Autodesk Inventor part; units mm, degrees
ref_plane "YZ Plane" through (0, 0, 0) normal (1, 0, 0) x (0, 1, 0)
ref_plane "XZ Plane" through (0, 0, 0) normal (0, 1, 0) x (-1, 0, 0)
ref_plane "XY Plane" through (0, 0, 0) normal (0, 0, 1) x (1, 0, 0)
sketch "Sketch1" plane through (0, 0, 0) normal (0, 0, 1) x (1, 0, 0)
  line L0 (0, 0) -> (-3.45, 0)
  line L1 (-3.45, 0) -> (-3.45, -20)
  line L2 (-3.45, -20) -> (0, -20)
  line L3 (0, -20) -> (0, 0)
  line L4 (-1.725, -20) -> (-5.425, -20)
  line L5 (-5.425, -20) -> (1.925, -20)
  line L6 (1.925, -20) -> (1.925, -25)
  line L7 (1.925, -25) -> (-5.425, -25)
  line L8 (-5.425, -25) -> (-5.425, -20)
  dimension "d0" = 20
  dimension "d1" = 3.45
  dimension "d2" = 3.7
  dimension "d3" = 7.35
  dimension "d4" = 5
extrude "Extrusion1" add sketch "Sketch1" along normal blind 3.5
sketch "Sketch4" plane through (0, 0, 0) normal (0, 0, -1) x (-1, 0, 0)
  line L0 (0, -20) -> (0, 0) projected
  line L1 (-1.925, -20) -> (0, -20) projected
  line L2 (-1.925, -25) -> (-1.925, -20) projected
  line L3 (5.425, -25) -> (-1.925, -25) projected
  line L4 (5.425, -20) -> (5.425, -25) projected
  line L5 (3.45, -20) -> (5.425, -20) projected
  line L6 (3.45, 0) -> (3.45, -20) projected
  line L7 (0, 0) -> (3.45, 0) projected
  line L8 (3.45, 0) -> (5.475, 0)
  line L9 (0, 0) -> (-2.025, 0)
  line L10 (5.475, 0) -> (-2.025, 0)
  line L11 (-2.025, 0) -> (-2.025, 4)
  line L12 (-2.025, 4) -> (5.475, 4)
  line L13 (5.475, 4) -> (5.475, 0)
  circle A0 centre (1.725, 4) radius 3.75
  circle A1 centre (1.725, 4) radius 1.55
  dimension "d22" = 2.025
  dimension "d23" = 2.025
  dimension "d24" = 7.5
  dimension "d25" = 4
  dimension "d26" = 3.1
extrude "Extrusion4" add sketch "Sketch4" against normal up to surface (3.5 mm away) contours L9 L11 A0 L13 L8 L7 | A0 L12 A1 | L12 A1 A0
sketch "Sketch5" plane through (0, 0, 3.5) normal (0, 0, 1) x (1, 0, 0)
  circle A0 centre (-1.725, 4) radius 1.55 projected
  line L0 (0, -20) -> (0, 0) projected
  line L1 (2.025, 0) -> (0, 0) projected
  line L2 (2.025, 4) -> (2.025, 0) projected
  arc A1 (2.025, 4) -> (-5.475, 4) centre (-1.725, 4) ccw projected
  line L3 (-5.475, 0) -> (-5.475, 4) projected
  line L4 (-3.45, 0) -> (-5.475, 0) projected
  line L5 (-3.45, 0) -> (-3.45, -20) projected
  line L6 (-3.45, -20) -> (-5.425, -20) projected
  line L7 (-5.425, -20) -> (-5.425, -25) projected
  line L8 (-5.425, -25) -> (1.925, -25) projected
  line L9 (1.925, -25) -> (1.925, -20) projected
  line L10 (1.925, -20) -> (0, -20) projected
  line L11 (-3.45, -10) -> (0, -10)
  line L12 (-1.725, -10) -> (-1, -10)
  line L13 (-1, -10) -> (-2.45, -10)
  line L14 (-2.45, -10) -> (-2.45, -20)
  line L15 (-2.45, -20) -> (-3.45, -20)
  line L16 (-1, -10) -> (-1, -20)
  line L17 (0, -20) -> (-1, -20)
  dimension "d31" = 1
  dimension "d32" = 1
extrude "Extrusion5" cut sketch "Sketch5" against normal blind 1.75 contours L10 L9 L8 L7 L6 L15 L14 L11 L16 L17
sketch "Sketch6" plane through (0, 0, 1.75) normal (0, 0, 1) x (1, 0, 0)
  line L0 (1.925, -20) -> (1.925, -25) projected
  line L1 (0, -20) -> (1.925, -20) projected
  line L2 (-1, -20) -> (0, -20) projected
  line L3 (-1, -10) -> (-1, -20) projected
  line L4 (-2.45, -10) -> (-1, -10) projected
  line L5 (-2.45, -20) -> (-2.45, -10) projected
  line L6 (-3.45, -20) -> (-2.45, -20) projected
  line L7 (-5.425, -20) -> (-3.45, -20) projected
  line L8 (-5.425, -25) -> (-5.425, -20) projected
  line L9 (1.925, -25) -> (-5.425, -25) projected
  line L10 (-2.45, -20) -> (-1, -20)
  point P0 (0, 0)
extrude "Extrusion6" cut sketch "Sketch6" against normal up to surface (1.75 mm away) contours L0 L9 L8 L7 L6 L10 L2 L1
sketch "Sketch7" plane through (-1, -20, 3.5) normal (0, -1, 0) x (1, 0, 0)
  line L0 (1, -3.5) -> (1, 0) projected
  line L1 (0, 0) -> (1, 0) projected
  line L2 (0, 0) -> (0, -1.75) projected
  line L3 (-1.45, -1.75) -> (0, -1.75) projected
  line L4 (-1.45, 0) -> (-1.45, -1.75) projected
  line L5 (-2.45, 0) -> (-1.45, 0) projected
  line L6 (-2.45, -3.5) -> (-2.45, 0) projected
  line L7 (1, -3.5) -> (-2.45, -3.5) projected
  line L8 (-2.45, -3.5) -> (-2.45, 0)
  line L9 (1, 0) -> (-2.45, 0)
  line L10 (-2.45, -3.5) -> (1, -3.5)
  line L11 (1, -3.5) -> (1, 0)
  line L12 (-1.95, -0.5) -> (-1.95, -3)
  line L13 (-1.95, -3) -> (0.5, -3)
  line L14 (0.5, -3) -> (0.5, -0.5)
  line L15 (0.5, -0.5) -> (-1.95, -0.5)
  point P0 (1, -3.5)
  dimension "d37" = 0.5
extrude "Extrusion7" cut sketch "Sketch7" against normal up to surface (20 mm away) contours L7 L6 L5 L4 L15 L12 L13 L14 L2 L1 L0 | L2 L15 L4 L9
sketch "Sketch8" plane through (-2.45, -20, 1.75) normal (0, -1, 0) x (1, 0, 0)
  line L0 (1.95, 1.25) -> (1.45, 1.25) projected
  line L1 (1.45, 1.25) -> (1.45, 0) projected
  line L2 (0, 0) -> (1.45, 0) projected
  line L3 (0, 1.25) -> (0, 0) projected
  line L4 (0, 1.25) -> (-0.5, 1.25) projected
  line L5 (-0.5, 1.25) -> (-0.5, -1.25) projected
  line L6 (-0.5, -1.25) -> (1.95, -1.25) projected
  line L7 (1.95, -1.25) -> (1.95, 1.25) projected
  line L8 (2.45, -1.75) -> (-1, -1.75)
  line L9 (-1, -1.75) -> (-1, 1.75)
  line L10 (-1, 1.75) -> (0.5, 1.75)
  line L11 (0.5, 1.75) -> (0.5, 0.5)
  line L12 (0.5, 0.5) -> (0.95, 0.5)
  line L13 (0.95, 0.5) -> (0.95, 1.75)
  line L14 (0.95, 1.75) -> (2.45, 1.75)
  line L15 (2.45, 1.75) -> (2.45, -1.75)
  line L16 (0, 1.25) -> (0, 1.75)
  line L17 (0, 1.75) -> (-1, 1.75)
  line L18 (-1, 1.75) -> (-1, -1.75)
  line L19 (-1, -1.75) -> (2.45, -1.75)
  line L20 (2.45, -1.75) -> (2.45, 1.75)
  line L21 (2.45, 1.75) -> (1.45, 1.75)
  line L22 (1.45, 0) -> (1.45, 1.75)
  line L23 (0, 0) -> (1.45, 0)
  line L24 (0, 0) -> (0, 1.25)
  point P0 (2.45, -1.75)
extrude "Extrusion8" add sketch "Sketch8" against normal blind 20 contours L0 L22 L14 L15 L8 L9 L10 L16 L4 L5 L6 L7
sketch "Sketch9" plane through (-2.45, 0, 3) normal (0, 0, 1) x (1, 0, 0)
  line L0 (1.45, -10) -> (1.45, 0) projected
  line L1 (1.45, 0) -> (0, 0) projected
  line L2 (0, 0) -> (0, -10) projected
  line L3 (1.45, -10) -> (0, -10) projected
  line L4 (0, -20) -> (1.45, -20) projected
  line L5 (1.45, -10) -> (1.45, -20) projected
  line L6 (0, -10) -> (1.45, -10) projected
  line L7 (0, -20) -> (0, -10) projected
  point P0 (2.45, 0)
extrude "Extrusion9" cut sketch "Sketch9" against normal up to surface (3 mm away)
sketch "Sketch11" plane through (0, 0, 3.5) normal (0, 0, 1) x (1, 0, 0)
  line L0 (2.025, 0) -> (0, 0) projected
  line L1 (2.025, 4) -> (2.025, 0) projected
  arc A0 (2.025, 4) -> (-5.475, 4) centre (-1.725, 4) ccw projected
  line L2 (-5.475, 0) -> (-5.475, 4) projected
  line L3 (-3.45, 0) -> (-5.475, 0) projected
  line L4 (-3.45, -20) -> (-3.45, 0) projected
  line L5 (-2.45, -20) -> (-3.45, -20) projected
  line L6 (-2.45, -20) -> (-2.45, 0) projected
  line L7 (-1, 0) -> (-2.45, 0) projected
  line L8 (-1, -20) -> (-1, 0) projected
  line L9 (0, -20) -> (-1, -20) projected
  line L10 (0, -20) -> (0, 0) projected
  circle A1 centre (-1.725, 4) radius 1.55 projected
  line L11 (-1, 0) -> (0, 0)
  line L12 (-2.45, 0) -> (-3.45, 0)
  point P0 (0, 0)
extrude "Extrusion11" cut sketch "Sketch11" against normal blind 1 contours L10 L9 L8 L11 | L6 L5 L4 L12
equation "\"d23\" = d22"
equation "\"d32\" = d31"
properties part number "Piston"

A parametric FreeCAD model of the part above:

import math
import FreeCAD as App
import Part
import Sketcher

doc = App.newDocument("Part")
params = doc.addObject("Spreadsheet::Sheet", "Params")
for row, (alias, value) in enumerate([
    ("sketch1_height", "20 mm"),
    ("sketch1_height2", "5 mm"),
    ("sketch1_width", "3.45 mm"),
    ("sketch1_width2", "7.35 mm"),
    ("pad1_length", "3.5 mm"),
    ("sketch2_diameter", "3.1 mm"),
    ("sketch2_height", "4 mm"),
    ("sketch2_radius", "3.75 mm"),
    ("pad2_length", "3.5 mm"),
    ("sketch3_height", "10 mm"),
    ("sketch3_height2", "5 mm"),
    ("sketch3_width", "1.45 mm"),
    ("sketch3_width2", "7.35 mm"),
    ("pocket1_length", "1.75 mm"),
    ("sketch4_height", "5 mm"),
    ("sketch4_width", "7.35 mm"),
    ("pocket2_length", "1.75 mm"),
    ("sketch5_height", "3.5 mm"),
    ("sketch5_width", "3.45 mm"),
    ("pocket3_length", "20 mm"),
    ("sketch6_width", "1 mm"),
    ("sketch6_width2", "0.5 mm"),
    ("sketch6_height", "2.5 mm"),
    ("sketch6_height2", "3.5 mm"),
    ("sketch6_width3", "2.45 mm"),
    ("pad3_length", "20 mm"),
    ("sketch7_height", "20 mm"),
    ("sketch7_width", "1.45 mm"),
    ("pocket4_length", "3 mm"),
    ("sketch8_width", "1 mm"),
    ("sketch8_height", "20 mm"),
    ("pocket5_length", "1 mm"),
], start=1):
    params.set(f"A{row}", alias)
    params.set(f"B{row}", "=" + value)
    params.setAlias(f"B{row}", alias)

body = doc.addObject("PartDesign::Body", "Body")

sketch1 = doc.addObject("Sketcher::SketchObject", "Sketch")
body.addObject(sketch1)
sketch1.AttachmentSupport = (doc.XY_Plane, [""])
sketch1.MapMode = "FlatFace"
sketch1.addGeometry([
    Part.LineSegment(App.Vector(0, -20, 0), App.Vector(0, 0, 0)),
    Part.LineSegment(App.Vector(0, 0, 0), App.Vector(-3.5, 0, 0)),
    Part.LineSegment(App.Vector(-3.5, 0, 0), App.Vector(-3.5, -20, 0)),
    Part.LineSegment(App.Vector(-3.5, -20, 0), App.Vector(-5.4, -20, 0)),
    Part.LineSegment(App.Vector(-5.4, -20, 0), App.Vector(-5.4, -25, 0)),
    Part.LineSegment(App.Vector(-5.4, -25, 0), App.Vector(1.9, -25, 0)),
    Part.LineSegment(App.Vector(1.9, -25, 0), App.Vector(1.9, -20, 0)),
    Part.LineSegment(App.Vector(1.9, -20, 0), App.Vector(0, -20, 0)),
], False)
sketch1.addConstraint([
    Sketcher.Constraint("Coincident", 0, 2, 1, 1),
    Sketcher.Constraint("Coincident", 1, 2, 2, 1),
    Sketcher.Constraint("Coincident", 2, 2, 3, 1),
    Sketcher.Constraint("Coincident", 3, 2, 4, 1),
    Sketcher.Constraint("Coincident", 4, 2, 5, 1),
    Sketcher.Constraint("Coincident", 5, 2, 6, 1),
    Sketcher.Constraint("Coincident", 6, 2, 7, 1),
    Sketcher.Constraint("Coincident", 7, 2, 0, 1),
    Sketcher.Constraint("Vertical", 0),
    Sketcher.Constraint("Horizontal", 1),
    Sketcher.Constraint("Vertical", 2),
    Sketcher.Constraint("Horizontal", 3),
    Sketcher.Constraint("Vertical", 4),
    Sketcher.Constraint("Horizontal", 5),
    Sketcher.Constraint("Vertical", 6),
    Sketcher.Constraint("Horizontal", 7),
    Sketcher.Constraint("Coincident", 0, 2, -1, 1),
    Sketcher.Constraint("Horizontal", 3, 2, 6, 2),
    Sketcher.Constraint("DistanceY", 0, 1, 0, 2, 20.0),
    Sketcher.Constraint("DistanceY", 4, 2, 4, 1, 5.0),
    Sketcher.Constraint("DistanceX", 1, 2, 1, 1, 3.45),
    Sketcher.Constraint("DistanceX", 5, 1, 5, 2, 7.35),
    Sketcher.Constraint("DistanceX", 3, 2, 3, 1, 1.975),
])
sketch1.setExpression("Constraints[18]", "Params.sketch1_height")
sketch1.setExpression("Constraints[19]", "Params.sketch1_height2")
sketch1.setExpression("Constraints[20]", "Params.sketch1_width")
sketch1.setExpression("Constraints[21]", "Params.sketch1_width2")
pad1 = doc.addObject("PartDesign::Pad", "Pad")
body.addObject(pad1)
pad1.Profile = sketch1
pad1.setExpression("Length", "Params.pad1_length")

sketch2 = doc.addObject("Sketcher::SketchObject", "Sketch001")
body.addObject(sketch2)
sketch2.AttachmentSupport = (doc.XY_Plane, [""])
sketch2.MapMode = "FlatFace"
sketch2.addGeometry([
    Part.LineSegment(App.Vector(2, 0, 0), App.Vector(-5.5, 0, 0)),
    Part.LineSegment(App.Vector(-5.5, 0, 0), App.Vector(-5.5, 4, 0)),
    Part.ArcOfCircle(Part.Circle(App.Vector(-1.7, 4, 0), App.Vector(0, 0, 1), 3.8), math.radians(0), math.radians(180)),
    Part.LineSegment(App.Vector(2, 4, 0), App.Vector(2, 0, 0)),
    Part.Circle(App.Vector(-1.7, 4, 0), App.Vector(0, 0, 1), 1.6),
], False)
sketch2.addConstraint([
    Sketcher.Constraint("Coincident", 0, 2, 1, 1),
    Sketcher.Constraint("Tangent", 1, 2, 2, 2),
    Sketcher.Constraint("Tangent", 2, 1, 3, 1),
    Sketcher.Constraint("Coincident", 3, 2, 0, 1),
    Sketcher.Constraint("Horizontal", 0),
    Sketcher.Constraint("Vertical", 1),
    Sketcher.Constraint("Vertical", 3),
    Sketcher.Constraint("Coincident", 4, 3, 2, 3),
    Sketcher.Constraint("PointOnObject", 0, 2, -1),
    Sketcher.Constraint("Diameter", 4, 3.1),
    Sketcher.Constraint("DistanceY", 1, 1, 1, 2, 4.0),
    Sketcher.Constraint("Radius", 2, 3.75),
    Sketcher.Constraint("DistanceX", -1, 1, 2, 1, 2.025),
])
sketch2.setExpression("Constraints[9]", "Params.sketch2_diameter")
sketch2.setExpression("Constraints[10]", "Params.sketch2_height")
sketch2.setExpression("Constraints[11]", "Params.sketch2_radius")
pad2 = doc.addObject("PartDesign::Pad", "Pad001")
body.addObject(pad2)
pad2.Profile = sketch2
pad2.setExpression("Length", "Params.pad2_length")

sketch3 = doc.addObject("Sketcher::SketchObject", "Sketch002")
body.addObject(sketch3)
sketch3.AttachmentSupport = (doc.XY_Plane, [""])
sketch3.MapMode = "FlatFace"
sketch3.AttachmentOffset = App.Placement(App.Vector(0, 0, 3.5), App.Rotation())
sketch3.addGeometry([
    Part.LineSegment(App.Vector(1.9, -20, 0), App.Vector(-1, -20, 0)),
    Part.LineSegment(App.Vector(-1, -20, 0), App.Vector(-1, -10, 0)),
    Part.LineSegment(App.Vector(-1, -10, 0), App.Vector(-2.5, -10, 0)),
    Part.LineSegment(App.Vector(-2.5, -10, 0), App.Vector(-2.5, -20, 0)),
    Part.LineSegment(App.Vector(-2.5, -20, 0), App.Vector(-5.4, -20, 0)),
    Part.LineSegment(App.Vector(-5.4, -20, 0), App.Vector(-5.4, -25, 0)),
    Part.LineSegment(App.Vector(-5.4, -25, 0), App.Vector(1.9, -25, 0)),
    Part.LineSegment(App.Vector(1.9, -25, 0), App.Vector(1.9, -20, 0)),
], False)
sketch3.addConstraint([
    Sketcher.Constraint("Coincident", 0, 2, 1, 1),
    Sketcher.Constraint("Coincident", 1, 2, 2, 1),
    Sketcher.Constraint("Coincident", 2, 2, 3, 1),
    Sketcher.Constraint("Coincident", 3, 2, 4, 1),
    Sketcher.Constraint("Coincident", 4, 2, 5, 1),
    Sketcher.Constraint("Coincident", 5, 2, 6, 1),
    Sketcher.Constraint("Coincident", 6, 2, 7, 1),
    Sketcher.Constraint("Coincident", 7, 2, 0, 1),
    Sketcher.Constraint("Horizontal", 0),
    Sketcher.Constraint("Vertical", 1),
    Sketcher.Constraint("Horizontal", 2),
    Sketcher.Constraint("Vertical", 3),
    Sketcher.Constraint("Horizontal", 4),
    Sketcher.Constraint("Vertical", 5),
    Sketcher.Constraint("Horizontal", 6),
    Sketcher.Constraint("Vertical", 7),
    Sketcher.Constraint("Horizontal", 0, 2, 3, 2),
    Sketcher.Constraint("DistanceX", 0, 2, -1, 1, 1.0),
    Sketcher.Constraint("DistanceY", 1, 1, 1, 2, 10.0),
    Sketcher.Constraint("DistanceY", 5, 2, 5, 1, 5.0),
    Sketcher.Constraint("DistanceY", 0, 2, -1, 1, 20.0),
    Sketcher.Constraint("DistanceX", 2, 2, 2, 1, 1.45),
    Sketcher.Constraint("DistanceX", 6, 1, 6, 2, 7.35),
    Sketcher.Constraint("DistanceX", 0, 2, 0, 1, 2.925),
])
sketch3.setExpression("Constraints[18]", "Params.sketch3_height")
sketch3.setExpression("Constraints[19]", "Params.sketch3_height2")
sketch3.setExpression("Constraints[21]", "Params.sketch3_width")
sketch3.setExpression("Constraints[22]", "Params.sketch3_width2")
pocket1 = doc.addObject("PartDesign::Pocket", "Pocket")
body.addObject(pocket1)
pocket1.Profile = sketch3
pocket1.setExpression("Length", "Params.pocket1_length")

sketch4 = doc.addObject("Sketcher::SketchObject", "Sketch003")
body.addObject(sketch4)
sketch4.AttachmentSupport = (doc.XY_Plane, [""])
sketch4.MapMode = "FlatFace"
sketch4.AttachmentOffset = App.Placement(App.Vector(0, 0, 1.75), App.Rotation())
sketch4.addGeometry([
    Part.LineSegment(App.Vector(2, -25, 0), App.Vector(2, -20, 0)),
    Part.LineSegment(App.Vector(2, -20, 0), App.Vector(-5, -20, 0)),
    Part.LineSegment(App.Vector(-5, -20, 0), App.Vector(-5, -25, 0)),
    Part.LineSegment(App.Vector(-5, -25, 0), App.Vector(2, -25, 0)),
], False)
sketch4.addConstraint([
    Sketcher.Constraint("Coincident", 0, 2, 1, 1),
    Sketcher.Constraint("Coincident", 1, 2, 2, 1),
    Sketcher.Constraint("Coincident", 2, 2, 3, 1),
    Sketcher.Constraint("Coincident", 3, 2, 0, 1),
    Sketcher.Constraint("Vertical", 0),
    Sketcher.Constraint("Horizontal", 1),
    Sketcher.Constraint("Vertical", 2),
    Sketcher.Constraint("Horizontal", 3),
    Sketcher.Constraint("DistanceY", 0, 1, 0, 2, 5.0),
    Sketcher.Constraint("DistanceY", 0, 2, -1, 1, 20.0),
    Sketcher.Constraint("DistanceX", 1, 2, 1, 1, 7.35),
    Sketcher.Constraint("DistanceX", -1, 1, 0, 2, 1.925),
])
sketch4.setExpression("Constraints[8]", "Params.sketch4_height")
sketch4.setExpression("Constraints[10]", "Params.sketch4_width")
pocket2 = doc.addObject("PartDesign::Pocket", "Pocket001")
body.addObject(pocket2)
pocket2.Profile = sketch4
pocket2.setExpression("Length", "Params.pocket2_length")

sketch5 = doc.addObject("Sketcher::SketchObject", "Sketch004")
body.addObject(sketch5)
sketch5.AttachmentSupport = (doc.XZ_Plane, [""])
sketch5.MapMode = "FlatFace"
sketch5.AttachmentOffset = App.Placement(App.Vector(0, 0, 20), App.Rotation())
sketch5.addGeometry([
    Part.LineSegment(App.Vector(-3.5, 0, 0), App.Vector(0, 0, 0)),
    Part.LineSegment(App.Vector(0, 0, 0), App.Vector(0, 3.5, 0)),
    Part.LineSegment(App.Vector(0, 3.5, 0), App.Vector(-3.5, 3.5, 0)),
    Part.LineSegment(App.Vector(-3.5, 3.5, 0), App.Vector(-3.5, 0, 0)),
    Part.LineSegment(App.Vector(-3, 3, 0), App.Vector(-0.5, 3, 0)),
    Part.LineSegment(App.Vector(-0.5, 3, 0), App.Vector(-0.5, 0.5, 0)),
    Part.LineSegment(App.Vector(-0.5, 0.5, 0), App.Vector(-3, 0.5, 0)),
    Part.LineSegment(App.Vector(-3, 0.5, 0), App.Vector(-3, 3, 0)),
], False)
sketch5.addConstraint([
    Sketcher.Constraint("Coincident", 0, 2, 1, 1),
    Sketcher.Constraint("Coincident", 1, 2, 2, 1),
    Sketcher.Constraint("Coincident", 2, 2, 3, 1),
    Sketcher.Constraint("Coincident", 3, 2, 0, 1),
    Sketcher.Constraint("Coincident", 4, 2, 5, 1),
    Sketcher.Constraint("Coincident", 5, 2, 6, 1),
    Sketcher.Constraint("Coincident", 6, 2, 7, 1),
    Sketcher.Constraint("Coincident", 7, 2, 4, 1),
    Sketcher.Constraint("Horizontal", 0),
    Sketcher.Constraint("Vertical", 1),
    Sketcher.Constraint("Horizontal", 2),
    Sketcher.Constraint("Vertical", 3),
    Sketcher.Constraint("Horizontal", 4),
    Sketcher.Constraint("Vertical", 5),
    Sketcher.Constraint("Horizontal", 6),
    Sketcher.Constraint("Vertical", 7),
    Sketcher.Constraint("Coincident", 0, 2, -1, 1),
    Sketcher.Constraint("DistanceX", 4, 2, -1, 1, 0.5),
    Sketcher.Constraint("DistanceY", -1, 1, 5, 2, 0.5),
    Sketcher.Constraint("DistanceY", 4, 2, 1, 2, 0.5),
    Sketcher.Constraint("DistanceX", 3, 2, 6, 2, 0.5),
    Sketcher.Constraint("DistanceY", 1, 1, 1, 2, 3.5),
    Sketcher.Constraint("DistanceX", 0, 1, 0, 2, 3.45),
])
sketch5.setExpression("Constraints[21]", "Params.sketch5_height")
sketch5.setExpression("Constraints[22]", "Params.sketch5_width")
pocket3 = doc.addObject("PartDesign::Pocket", "Pocket002")
body.addObject(pocket3)
pocket3.Profile = sketch5
pocket3.setExpression("Length", "Params.pocket3_length")

sketch6 = doc.addObject("Sketcher::SketchObject", "Sketch005")
body.addObject(sketch6)
sketch6.AttachmentSupport = (doc.XZ_Plane, [""])
sketch6.MapMode = "FlatFace"
sketch6.AttachmentOffset = App.Placement(App.Vector(0, 0, 20), App.Rotation())
sketch6.addGeometry([
    Part.LineSegment(App.Vector(-1, 3, 0), App.Vector(-0.5, 3, 0)),
    Part.LineSegment(App.Vector(-0.5, 3, 0), App.Vector(-0.5, 0.5, 0)),
    Part.LineSegment(App.Vector(-0.5, 0.5, 0), App.Vector(-3, 0.5, 0)),
    Part.LineSegment(App.Vector(-3, 0.5, 0), App.Vector(-3, 3, 0)),
    Part.LineSegment(App.Vector(-3, 3, 0), App.Vector(-2.5, 3, 0)),
    Part.LineSegment(App.Vector(-2.5, 3, 0), App.Vector(-2.5, 3.5, 0)),
    Part.LineSegment(App.Vector(-2.5, 3.5, 0), App.Vector(-3.5, 3.5, 0)),
    Part.LineSegment(App.Vector(-3.5, 3.5, 0), App.Vector(-3.5, 0, 0)),
    Part.LineSegment(App.Vector(-3.5, 0, 0), App.Vector(0, 0, 0)),
    Part.LineSegment(App.Vector(0, 0, 0), App.Vector(0, 3.5, 0)),
    Part.LineSegment(App.Vector(0, 3.5, 0), App.Vector(-1, 3.5, 0)),
    Part.LineSegment(App.Vector(-1, 3.5, 0), App.Vector(-1, 3, 0)),
], False)
sketch6.addConstraint([
    Sketcher.Constraint("Coincident", 0, 2, 1, 1),
    Sketcher.Constraint("Coincident", 1, 2, 2, 1),
    Sketcher.Constraint("Coincident", 2, 2, 3, 1),
    Sketcher.Constraint("Coincident", 3, 2, 4, 1),
    Sketcher.Constraint("Coincident", 4, 2, 5, 1),
    Sketcher.Constraint("Coincident", 5, 2, 6, 1),
    Sketcher.Constraint("Coincident", 6, 2, 7, 1),
    Sketcher.Constraint("Coincident", 7, 2, 8, 1),
    Sketcher.Constraint("Coincident", 8, 2, 9, 1),
    Sketcher.Constraint("Coincident", 9, 2, 10, 1),
    Sketcher.Constraint("Coincident", 10, 2, 11, 1),
    Sketcher.Constraint("Coincident", 11, 2, 0, 1),
    Sketcher.Constraint("Horizontal", 0),
    Sketcher.Constraint("Vertical", 1),
    Sketcher.Constraint("Horizontal", 2),
    Sketcher.Constraint("Vertical", 3),
    Sketcher.Constraint("Horizontal", 4),
    Sketcher.Constraint("Vertical", 5),
    Sketcher.Constraint("Horizontal", 6),
    Sketcher.Constraint("Vertical", 7),
    Sketcher.Constraint("Horizontal", 8),
    Sketcher.Constraint("Vertical", 9),
    Sketcher.Constraint("Horizontal", 10),
    Sketcher.Constraint("Vertical", 11),
    Sketcher.Constraint("Coincident", 8, 2, -1, 1),
    Sketcher.Constraint("Horizontal", 0, 2, 3, 2),
    Sketcher.Constraint("Horizontal", 6, 2, 9, 2),
    Sketcher.Constraint("Equal", 0, 4),
    Sketcher.Constraint("Equal", 6, 10),
    Sketcher.Constraint("Equal", 4, 5),
    Sketcher.Constraint("DistanceX", 6, 2, 6, 1, 1.0),
    Sketcher.Constraint("DistanceX", 0, 1, 0, 2, 0.5),
    Sketcher.Constraint("DistanceY", 1, 2, 1, 1, 2.5),
    Sketcher.Constraint("DistanceY", 7, 2, 7, 1, 3.5),
    Sketcher.Constraint("DistanceX", 2, 2, 2, 1, 2.45),
])
sketch6.setExpression("Constraints[30]", "Params.sketch6_width")
sketch6.setExpression("Constraints[31]", "Params.sketch6_width2")
sketch6.setExpression("Constraints[32]", "Params.sketch6_height")
sketch6.setExpression("Constraints[33]", "Params.sketch6_height2")
sketch6.setExpression("Constraints[34]", "Params.sketch6_width3")
pad3 = doc.addObject("PartDesign::Pad", "Pad002")
body.addObject(pad3)
pad3.Profile = sketch6
pad3.setExpression("Length", "Params.pad3_length")
pad3.Reversed = True

sketch7 = doc.addObject("Sketcher::SketchObject", "Sketch006")
body.addObject(sketch7)
sketch7.AttachmentSupport = (doc.XY_Plane, [""])
sketch7.MapMode = "FlatFace"
sketch7.AttachmentOffset = App.Placement(App.Vector(0, 0, 3), App.Rotation())
sketch7.addGeometry([
    Part.LineSegment(App.Vector(-2.5, 0, 0), App.Vector(-2.5, -20, 0)),
    Part.LineSegment(App.Vector(-2.5, -20, 0), App.Vector(-1, -20, 0)),
    Part.LineSegment(App.Vector(-1, -20, 0), App.Vector(-1, 0, 0)),
    Part.LineSegment(App.Vector(-1, 0, 0), App.Vector(-2.5, 0, 0)),
], False)
sketch7.addConstraint([
    Sketcher.Constraint("Coincident", 0, 2, 1, 1),
    Sketcher.Constraint("Coincident", 1, 2, 2, 1),
    Sketcher.Constraint("Coincident", 2, 2, 3, 1),
    Sketcher.Constraint("Coincident", 3, 2, 0, 1),
    Sketcher.Constraint("Vertical", 0),
    Sketcher.Constraint("Horizontal", 1),
    Sketcher.Constraint("Vertical", 2),
    Sketcher.Constraint("Horizontal", 3),
    Sketcher.Constraint("PointOnObject", 2, 2, -1),
    Sketcher.Constraint("DistanceY", 0, 2, 0, 1, 20.0),
    Sketcher.Constraint("DistanceX", 1, 2, -1, 1, 1.0),
    Sketcher.Constraint("DistanceX", 1, 1, 1, 2, 1.45),
])
sketch7.setExpression("Constraints[9]", "Params.sketch7_height")
sketch7.setExpression("Constraints[11]", "Params.sketch7_width")
pocket4 = doc.addObject("PartDesign::Pocket", "Pocket003")
body.addObject(pocket4)
pocket4.Profile = sketch7
pocket4.setExpression("Length", "Params.pocket4_length")

sketch8 = doc.addObject("Sketcher::SketchObject", "Sketch007")
body.addObject(sketch8)
sketch8.AttachmentSupport = (doc.XY_Plane, [""])
sketch8.MapMode = "FlatFace"
sketch8.AttachmentOffset = App.Placement(App.Vector(0, 0, 3.5), App.Rotation())
sketch8.addGeometry([
    Part.LineSegment(App.Vector(0, -20, 0), App.Vector(0, 0, 0)),
    Part.LineSegment(App.Vector(0, 0, 0), App.Vector(-1, 0, 0)),
    Part.LineSegment(App.Vector(-1, 0, 0), App.Vector(-1, -20, 0)),
    Part.LineSegment(App.Vector(-1, -20, 0), App.Vector(0, -20, 0)),
    Part.LineSegment(App.Vector(-2.5, -20, 0), App.Vector(-2.5, 0, 0)),
    Part.LineSegment(App.Vector(-2.5, 0, 0), App.Vector(-3.5, 0, 0)),
    Part.LineSegment(App.Vector(-3.5, 0, 0), App.Vector(-3.5, -20, 0)),
    Part.LineSegment(App.Vector(-3.5, -20, 0), App.Vector(-2.5, -20, 0)),
], False)
sketch8.addConstraint([
    Sketcher.Constraint("Coincident", 0, 2, 1, 1),
    Sketcher.Constraint("Coincident", 1, 2, 2, 1),
    Sketcher.Constraint("Coincident", 2, 2, 3, 1),
    Sketcher.Constraint("Coincident", 3, 2, 0, 1),
    Sketcher.Constraint("Coincident", 4, 2, 5, 1),
    Sketcher.Constraint("Coincident", 5, 2, 6, 1),
    Sketcher.Constraint("Coincident", 6, 2, 7, 1),
    Sketcher.Constraint("Coincident", 7, 2, 4, 1),
    Sketcher.Constraint("Vertical", 0),
    Sketcher.Constraint("Horizontal", 1),
    Sketcher.Constraint("Vertical", 2),
    Sketcher.Constraint("Horizontal", 3),
    Sketcher.Constraint("Vertical", 4),
    Sketcher.Constraint("Horizontal", 5),
    Sketcher.Constraint("Vertical", 6),
    Sketcher.Constraint("Horizontal", 7),
    Sketcher.Constraint("Coincident", 0, 2, -1, 1),
    Sketcher.Constraint("PointOnObject", 4, 2, -1),
    Sketcher.Constraint("Horizontal", 3, 2, 6, 2),
    Sketcher.Constraint("Equal", 3, 5),
    Sketcher.Constraint("DistanceX", 1, 2, 1, 1, 1.0),
    Sketcher.Constraint("DistanceY", 0, 1, 0, 2, 20.0),
    Sketcher.Constraint("DistanceX", 4, 2, -1, 1, 2.45),
])
sketch8.setExpression("Constraints[20]", "Params.sketch8_width")
sketch8.setExpression("Constraints[21]", "Params.sketch8_height")
pocket5 = doc.addObject("PartDesign::Pocket", "Pocket004")
body.addObject(pocket5)
pocket5.Profile = sketch8
pocket5.setExpression("Length", "Params.pocket5_length")

doc.recompute()
